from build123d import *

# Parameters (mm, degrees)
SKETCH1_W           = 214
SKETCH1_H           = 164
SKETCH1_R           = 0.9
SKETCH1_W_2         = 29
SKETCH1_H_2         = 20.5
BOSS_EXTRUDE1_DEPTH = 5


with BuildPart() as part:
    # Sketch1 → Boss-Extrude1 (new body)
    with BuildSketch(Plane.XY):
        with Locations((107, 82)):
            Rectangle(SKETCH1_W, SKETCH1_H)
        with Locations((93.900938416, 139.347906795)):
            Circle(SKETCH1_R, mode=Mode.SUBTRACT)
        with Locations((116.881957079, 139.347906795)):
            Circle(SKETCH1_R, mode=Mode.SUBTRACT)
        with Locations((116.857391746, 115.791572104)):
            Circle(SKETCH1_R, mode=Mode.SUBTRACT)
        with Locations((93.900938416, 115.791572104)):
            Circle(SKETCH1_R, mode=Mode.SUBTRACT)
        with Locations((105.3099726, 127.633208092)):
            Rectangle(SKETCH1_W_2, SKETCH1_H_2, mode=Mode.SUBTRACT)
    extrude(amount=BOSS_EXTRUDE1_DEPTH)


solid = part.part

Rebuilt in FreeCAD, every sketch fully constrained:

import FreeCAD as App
import Part
import Sketcher

V = App.Vector
Q = App.Units.Quantity

doc = App.newDocument("Part")
body = doc.addObject("PartDesign::Body", "Body")

sketch1 = body.newObject("Sketcher::SketchObject", "Sketch")
sketch1.AttachmentSupport = (doc.getObject("XY_Plane"), [""])
sketch1.MapMode = "FlatFace"
sketch1.addGeometry(Part.LineSegment(V(0, 164, 0), V(0, 0, 0)), False)
sketch1.addGeometry(Part.LineSegment(V(0, 0, 0), V(214, 0, 0)), False)
sketch1.addGeometry(Part.LineSegment(V(214, 0, 0), V(214, 164, 0)), False)
sketch1.addGeometry(Part.LineSegment(V(214, 164, 0), V(0, 164, 0)), False)
sketch1.addGeometry(Part.Circle(V(93.9, 115.8, 0), V(0, 0, 1), 0.9), False)
sketch1.addGeometry(Part.Circle(V(116.9, 115.8, 0), V(0, 0, 1), 0.9), False)
sketch1.addGeometry(Part.Circle(V(93.9, 139.3, 0), V(0, 0, 1), 0.9), False)
sketch1.addGeometry(Part.LineSegment(V(119.8, 117.4, 0), V(90.8, 117.4, 0)), False)
sketch1.addGeometry(Part.LineSegment(V(90.8, 117.4, 0), V(90.8, 137.9, 0)), False)
sketch1.addGeometry(Part.LineSegment(V(90.8, 137.9, 0), V(119.8, 137.9, 0)), False)
sketch1.addGeometry(Part.LineSegment(V(119.8, 137.9, 0), V(119.8, 117.4, 0)), False)
sketch1.addGeometry(Part.Circle(V(116.9, 139.3, 0), V(0, 0, 1), 0.9), False)
sketch1.addConstraint(Sketcher.Constraint("Coincident", 0, 2, 1, 1))
sketch1.addConstraint(Sketcher.Constraint("Coincident", 1, 2, 2, 1))
sketch1.addConstraint(Sketcher.Constraint("Coincident", 2, 2, 3, 1))
sketch1.addConstraint(Sketcher.Constraint("Coincident", 3, 2, 0, 1))
sketch1.addConstraint(Sketcher.Constraint("Coincident", 7, 2, 8, 1))
sketch1.addConstraint(Sketcher.Constraint("Coincident", 8, 2, 9, 1))
sketch1.addConstraint(Sketcher.Constraint("Coincident", 9, 2, 10, 1))
sketch1.addConstraint(Sketcher.Constraint("Coincident", 10, 2, 7, 1))
sketch1.addConstraint(Sketcher.Constraint("Vertical", 0))
sketch1.addConstraint(Sketcher.Constraint("Horizontal", 1))
sketch1.addConstraint(Sketcher.Constraint("Vertical", 2))
sketch1.addConstraint(Sketcher.Constraint("Horizontal", 3))
sketch1.addConstraint(Sketcher.Constraint("Horizontal", 7))
sketch1.addConstraint(Sketcher.Constraint("Vertical", 8))
sketch1.addConstraint(Sketcher.Constraint("Horizontal", 9))
sketch1.addConstraint(Sketcher.Constraint("Vertical", 10))
sketch1.addConstraint(Sketcher.Constraint("Coincident", 0, 2, -1, 1))
sketch1.addConstraint(Sketcher.Constraint("Equal", 4, 5))
sketch1.addConstraint(Sketcher.Constraint("Equal", 5, 6))
sketch1.addConstraint(Sketcher.Constraint("Equal", 6, 11))
sketch1.addConstraint(Sketcher.Constraint("Horizontal", 4, 3, 5, 3))
sketch1.addConstraint(Sketcher.Constraint("Horizontal", 6, 3, 11, 3))
sketch1.addConstraint(Sketcher.Constraint("Vertical", 4, 3, 6, 3))
sketch1.addConstraint(Sketcher.Constraint("Diameter", 4, Q("1.8 mm")))
sketch1.addConstraint(Sketcher.Constraint("DistanceX", 1, 1, 1, 2, Q("214 mm")))
sketch1.addConstraint(Sketcher.Constraint("DistanceX", 7, 2, 7, 1, Q("29 mm")))
sketch1.addConstraint(Sketcher.Constraint("DistanceY", 0, 2, 0, 1, Q("164 mm")))
sketch1.addConstraint(Sketcher.Constraint("DistanceY", 8, 1, 8, 2, Q("20.5 mm")))
sketch1.addConstraint(Sketcher.Constraint("DistanceY", 7, 2, 6, 3, Q("21.964699 mm")))
sketch1.addConstraint(Sketcher.Constraint("DistanceX", -1, 1, 4, 3, Q("93.900938 mm")))
sketch1.addConstraint(Sketcher.Constraint("DistanceX", -1, 1, 5, 3, Q("116.857392 mm")))
sketch1.addConstraint(Sketcher.Constraint("DistanceY", -1, 1, 7, 2, Q("117.383208 mm")))
sketch1.addConstraint(Sketcher.Constraint("DistanceX", 6, 3, 11, 3, Q("22.981019 mm")))
sketch1.addConstraint(Sketcher.Constraint("DistanceX", 7, 2, 5, 3, Q("26.047419 mm")))
sketch1.addConstraint(Sketcher.Constraint("DistanceY", -1, 1, 4, 3, Q("115.791572 mm")))
pad1 = body.newObject("PartDesign::Pad", "Pad")
pad1.Profile = sketch1
pad1.Length = 5

doc.recompute()
